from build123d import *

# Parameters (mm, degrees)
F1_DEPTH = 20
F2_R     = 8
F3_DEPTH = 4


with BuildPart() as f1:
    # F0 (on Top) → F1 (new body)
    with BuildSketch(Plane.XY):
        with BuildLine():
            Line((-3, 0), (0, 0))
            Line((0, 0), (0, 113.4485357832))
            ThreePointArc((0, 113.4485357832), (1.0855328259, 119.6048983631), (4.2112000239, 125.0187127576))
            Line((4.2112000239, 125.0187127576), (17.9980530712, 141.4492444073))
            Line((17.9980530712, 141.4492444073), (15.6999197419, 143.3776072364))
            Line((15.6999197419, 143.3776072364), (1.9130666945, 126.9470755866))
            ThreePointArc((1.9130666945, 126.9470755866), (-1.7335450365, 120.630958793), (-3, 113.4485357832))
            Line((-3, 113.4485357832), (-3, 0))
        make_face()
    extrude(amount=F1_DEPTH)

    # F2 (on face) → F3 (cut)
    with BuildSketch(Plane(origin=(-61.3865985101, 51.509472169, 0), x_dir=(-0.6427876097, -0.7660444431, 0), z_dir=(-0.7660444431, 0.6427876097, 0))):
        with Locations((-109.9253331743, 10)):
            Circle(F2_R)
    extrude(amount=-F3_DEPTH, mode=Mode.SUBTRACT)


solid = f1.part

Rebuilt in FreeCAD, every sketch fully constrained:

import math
import FreeCAD as App
import Part
import Sketcher
Q = App.Units.Quantity

doc = App.newDocument("Part")
body = doc.addObject("PartDesign::Body", "Body")

# Sketch on XY plane
sketch1 = body.newObject("Sketcher::SketchObject", "Sketch")
sketch1.AttachmentSupport = (doc.getObject("XY_Plane"), [""])
sketch1.MapMode = "FlatFace"
sketch1.addGeometry([
    Part.LineSegment(App.Vector(-3, 0, 0), App.Vector(0, 0, 0)),  # 0
    Part.LineSegment(App.Vector(0, 0, 0), App.Vector(0, 113.4, 0)),  # 1
    Part.ArcOfCircle(Part.Circle(App.Vector(18, 113.4, 0), App.Vector(0, 0, 1), 18), math.radians(140), math.radians(180)),  # 2
    Part.LineSegment(App.Vector(4.2, 125, 0), App.Vector(18, 141.4, 0)),  # 3
    Part.LineSegment(App.Vector(18, 141.4, 0), App.Vector(15.7, 143.4, 0)),  # 4
    Part.LineSegment(App.Vector(15.7, 143.4, 0), App.Vector(1.9, 126.9, 0)),  # 5
    Part.ArcOfCircle(Part.Circle(App.Vector(18, 113.4, 0), App.Vector(0, 0, 1), 21), math.radians(140), math.radians(180)),  # 6
    Part.LineSegment(App.Vector(-3, 113.4, 0), App.Vector(-3, 0, 0)),  # 7
], False)
sketch1.addConstraint([
    Sketcher.Constraint("Coincident", 0, 2, 1, 1),
    Sketcher.Constraint("Tangent", 1, 2, 2, 2),
    Sketcher.Constraint("Tangent", 2, 1, 3, 1),
    Sketcher.Constraint("Coincident", 3, 2, 4, 1),
    Sketcher.Constraint("Coincident", 4, 2, 5, 1),
    Sketcher.Constraint("Tangent", 5, 2, 6, 1),
    Sketcher.Constraint("Tangent", 6, 2, 7, 1),
    Sketcher.Constraint("Coincident", 7, 2, 0, 1),
    Sketcher.Constraint("Horizontal", 0),
    Sketcher.Constraint("Vertical", 1),
    Sketcher.Constraint("Vertical", 7),
    Sketcher.Constraint("Coincident", 0, 2, -1, 1),
    Sketcher.Constraint("Coincident", 6, 3, 2, 3),
    Sketcher.Constraint("Perpendicular", 3, 4),
    Sketcher.Constraint("Perpendicular", 4, 5),
    Sketcher.Constraint("Radius", 2, Q("18 mm")),
    Sketcher.Constraint("Radius", 6, Q("21 mm")),
    Sketcher.Constraint("Angle", 3, Q("50 deg")),
    Sketcher.Constraint("DistanceY", 1, 1, 1, 2, Q("113.448536 mm")),
    Sketcher.Constraint("DistanceX", -1, 1, 4, 2, Q("15.69992 mm")),
])
pad1 = body.newObject("PartDesign::Pad", "Pad")
pad1.Profile = sketch1
pad1.Length = 20

# Sketch on an angled plane
sketch2 = body.newObject("Sketcher::SketchObject", "Sketch001")
sketch2.Placement = App.Placement(App.Vector(-61.386599, 51.509472, 0), App.Rotation(App.Vector(-0.64278761, -0.766044443, 0), App.Vector(0, 0, 1), App.Vector(-0.766044443, 0.64278761, 0), "ZXY"))
sketch2.addGeometry(Part.Circle(App.Vector(-110, 10, 0), App.Vector(0, 0, 1), 8), False)
sketch2.addConstraint([
    Sketcher.Constraint("Diameter", 0, Q("16 mm")),
    Sketcher.Constraint("DistanceY", -1, 1, 0, 3, Q("10 mm")),
    Sketcher.Constraint("DistanceX", 0, 3, -1, 1, Q("109.925333 mm")),
])
pocket1 = body.newObject("PartDesign::Pocket", "Pocket")
pocket1.Profile = sketch2
pocket1.Length = 4

doc.recompute()
